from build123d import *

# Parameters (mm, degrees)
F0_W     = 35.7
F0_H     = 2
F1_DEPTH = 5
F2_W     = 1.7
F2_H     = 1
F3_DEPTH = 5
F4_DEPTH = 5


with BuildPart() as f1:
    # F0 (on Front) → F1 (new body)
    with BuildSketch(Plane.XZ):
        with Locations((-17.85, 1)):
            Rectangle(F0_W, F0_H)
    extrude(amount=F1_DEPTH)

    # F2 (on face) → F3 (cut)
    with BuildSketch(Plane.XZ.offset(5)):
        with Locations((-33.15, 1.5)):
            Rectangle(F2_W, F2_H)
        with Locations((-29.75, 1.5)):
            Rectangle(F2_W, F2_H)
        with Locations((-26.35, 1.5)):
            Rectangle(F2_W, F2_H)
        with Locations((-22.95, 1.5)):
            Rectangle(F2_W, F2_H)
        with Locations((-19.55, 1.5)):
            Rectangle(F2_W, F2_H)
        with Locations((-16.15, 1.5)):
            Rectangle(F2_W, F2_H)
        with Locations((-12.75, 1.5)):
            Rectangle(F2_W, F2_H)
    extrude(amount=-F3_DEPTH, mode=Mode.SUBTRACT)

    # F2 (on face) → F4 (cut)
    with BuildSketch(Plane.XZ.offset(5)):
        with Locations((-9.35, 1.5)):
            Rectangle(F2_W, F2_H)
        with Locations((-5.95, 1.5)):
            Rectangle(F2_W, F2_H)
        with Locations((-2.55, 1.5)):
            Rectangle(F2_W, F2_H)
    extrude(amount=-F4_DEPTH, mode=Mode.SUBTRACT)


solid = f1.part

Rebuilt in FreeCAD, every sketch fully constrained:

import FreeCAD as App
import Part
import Sketcher

V = App.Vector


def add_polygon(sketch, points):
    """Adds a closed chain of lines whose ends are joined by coincident constraints."""
    first, n = sketch.GeometryCount, len(points)
    for a, b in zip(points, points[1:] + points[:1]):
        sketch.addGeometry(Part.LineSegment(App.Vector(*a, 0), App.Vector(*b, 0)), False)
    for i in range(n):
        sketch.addConstraint(Sketcher.Constraint("Coincident", first + i, 2, first + (i + 1) % n, 1))

doc = App.newDocument("Part")
body = doc.addObject("PartDesign::Body", "Body")

sketch1 = doc.addObject("Sketcher::SketchObject", "Sketch")
body.addObject(sketch1)
sketch1.AttachmentSupport = (doc.XZ_Plane, [""])
sketch1.MapMode = "FlatFace"
add_polygon(sketch1, [(-35.7, 2), (-35.7, 0), (0, 0), (0, 2)])
sketch1.addConstraint(Sketcher.Constraint("Vertical", 0))
sketch1.addConstraint(Sketcher.Constraint("Horizontal", 1))
sketch1.addConstraint(Sketcher.Constraint("Vertical", 2))
sketch1.addConstraint(Sketcher.Constraint("Horizontal", 3))
sketch1.addConstraint(Sketcher.Constraint("Coincident", 1, 2, -1, 1))
sketch1.addConstraint(Sketcher.Constraint("DistanceY", 0, 2, 0, 1, 2.0))
sketch1.addConstraint(Sketcher.Constraint("DistanceX", 1, 1, 1, 2, 35.7))
pad1 = doc.addObject("PartDesign::Pad", "Pad")
body.addObject(pad1)
pad1.Profile = sketch1
pad1.Length = 5

sketch2 = doc.addObject("Sketcher::SketchObject", "Sketch001")
body.addObject(sketch2)
sketch2.AttachmentSupport = (doc.XZ_Plane, [""])
sketch2.MapMode = "FlatFace"
sketch2.AttachmentOffset = App.Placement(V(0, 0, 5), App.Rotation())
add_polygon(sketch2, [(-34, 2), (-34, 1), (-32.3, 1), (-32.3, 2)])
add_polygon(sketch2, [(-30.6, 2), (-30.6, 1), (-28.9, 1), (-28.9, 2)])
add_polygon(sketch2, [(-27.2, 2), (-27.2, 1), (-25.5, 1), (-25.5, 2)])
add_polygon(sketch2, [(-23.8, 2), (-23.8, 1), (-22.1, 1), (-22.1, 2)])
add_polygon(sketch2, [(-20.4, 2), (-20.4, 1), (-18.7, 1), (-18.7, 2)])
add_polygon(sketch2, [(-17, 2), (-17, 1), (-15.3, 1), (-15.3, 2)])
add_polygon(sketch2, [(-13.6, 2), (-13.6, 1), (-11.9, 1), (-11.9, 2)])
sketch2.addConstraint(Sketcher.Constraint("Vertical", 0))
sketch2.addConstraint(Sketcher.Constraint("Horizontal", 1))
sketch2.addConstraint(Sketcher.Constraint("Vertical", 2))
sketch2.addConstraint(Sketcher.Constraint("Horizontal", 3))
sketch2.addConstraint(Sketcher.Constraint("Vertical", 4))
sketch2.addConstraint(Sketcher.Constraint("Horizontal", 5))
sketch2.addConstraint(Sketcher.Constraint("Vertical", 6))
sketch2.addConstraint(Sketcher.Constraint("Horizontal", 7))
sketch2.addConstraint(Sketcher.Constraint("Vertical", 8))
sketch2.addConstraint(Sketcher.Constraint("Horizontal", 9))
sketch2.addConstraint(Sketcher.Constraint("Vertical", 10))
sketch2.addConstraint(Sketcher.Constraint("Horizontal", 11))
sketch2.addConstraint(Sketcher.Constraint("Vertical", 12))
sketch2.addConstraint(Sketcher.Constraint("Horizontal", 13))
sketch2.addConstraint(Sketcher.Constraint("Vertical", 14))
sketch2.addConstraint(Sketcher.Constraint("Horizontal", 15))
sketch2.addConstraint(Sketcher.Constraint("Vertical", 16))
sketch2.addConstraint(Sketcher.Constraint("Horizontal", 17))
sketch2.addConstraint(Sketcher.Constraint("Vertical", 18))
sketch2.addConstraint(Sketcher.Constraint("Horizontal", 19))
sketch2.addConstraint(Sketcher.Constraint("Vertical", 20))
sketch2.addConstraint(Sketcher.Constraint("Horizontal", 21))
sketch2.addConstraint(Sketcher.Constraint("Vertical", 22))
sketch2.addConstraint(Sketcher.Constraint("Horizontal", 23))
sketch2.addConstraint(Sketcher.Constraint("Vertical", 24))
sketch2.addConstraint(Sketcher.Constraint("Horizontal", 25))
sketch2.addConstraint(Sketcher.Constraint("Vertical", 26))
sketch2.addConstraint(Sketcher.Constraint("Horizontal", 27))
sketch2.addConstraint(Sketcher.Constraint("Horizontal", 1, 2, 4, 2))
sketch2.addConstraint(Sketcher.Constraint("Horizontal", 3, 2, 6, 2))
sketch2.addConstraint(Sketcher.Constraint("Horizontal", 5, 2, 8, 2))
sketch2.addConstraint(Sketcher.Constraint("Horizontal", 7, 2, 10, 2))
sketch2.addConstraint(Sketcher.Constraint("Horizontal", 9, 2, 12, 2))
sketch2.addConstraint(Sketcher.Constraint("Horizontal", 11, 2, 14, 2))
sketch2.addConstraint(Sketcher.Constraint("Horizontal", 13, 2, 16, 2))
sketch2.addConstraint(Sketcher.Constraint("Horizontal", 15, 2, 18, 2))
sketch2.addConstraint(Sketcher.Constraint("Horizontal", 17, 2, 20, 2))
sketch2.addConstraint(Sketcher.Constraint("Horizontal", 19, 2, 22, 2))
sketch2.addConstraint(Sketcher.Constraint("Horizontal", 21, 2, 24, 2))
sketch2.addConstraint(Sketcher.Constraint("Horizontal", 23, 2, 26, 2))
sketch2.addConstraint(Sketcher.Constraint("Equal", 3, 5))
sketch2.addConstraint(Sketcher.Constraint("Equal", 7, 9))
sketch2.addConstraint(Sketcher.Constraint("Equal", 11, 13))
sketch2.addConstraint(Sketcher.Constraint("Equal", 15, 17))
sketch2.addConstraint(Sketcher.Constraint("Equal", 19, 21))
sketch2.addConstraint(Sketcher.Constraint("Equal", 23, 25))
sketch2.addConstraint(Sketcher.Constraint("DistanceY", 0, 2, 0, 1, 1.0))
sketch2.addConstraint(Sketcher.Constraint("DistanceX", 1, 1, 1, 2, 1.7))
sketch2.addConstraint(Sketcher.Constraint("DistanceX", 0, 2, -1, 1, 34.0))
sketch2.addConstraint(Sketcher.Constraint("DistanceY", -1, 1, 0, 2, 1.0))
sketch2.addConstraint(Sketcher.Constraint("DistanceX", 20, 2, -1, 1, 17.0))
sketch2.addConstraint(Sketcher.Constraint("DistanceX", 4, 2, -1, 1, 30.6))
sketch2.addConstraint(Sketcher.Constraint("DistanceX", 8, 2, -1, 1, 27.2))
sketch2.addConstraint(Sketcher.Constraint("DistanceX", 12, 2, -1, 1, 23.8))
sketch2.addConstraint(Sketcher.Constraint("DistanceX", 16, 2, -1, 1, 20.4))
sketch2.addConstraint(Sketcher.Constraint("DistanceX", 24, 2, -1, 1, 13.6))
pocket1 = doc.addObject("PartDesign::Pocket", "Pocket")
body.addObject(pocket1)
pocket1.Profile = sketch2
pocket1.Length = 5

sketch3 = doc.addObject("Sketcher::SketchObject", "Sketch002")
body.addObject(sketch3)
sketch3.AttachmentSupport = (doc.XZ_Plane, [""])
sketch3.MapMode = "FlatFace"
sketch3.AttachmentOffset = App.Placement(V(0, 0, 5), App.Rotation())
add_polygon(sketch3, [(-10.2, 2), (-10.2, 1), (-8.5, 1), (-8.5, 2)])
add_polygon(sketch3, [(-6.8, 2), (-6.8, 1), (-5.1, 1), (-5.1, 2)])
add_polygon(sketch3, [(-3.4, 2), (-3.4, 1), (-1.7, 1), (-1.7, 2)])
sketch3.addConstraint(Sketcher.Constraint("Vertical", 0))
sketch3.addConstraint(Sketcher.Constraint("Horizontal", 1))
sketch3.addConstraint(Sketcher.Constraint("Vertical", 2))
sketch3.addConstraint(Sketcher.Constraint("Horizontal", 3))
sketch3.addConstraint(Sketcher.Constraint("Vertical", 4))
sketch3.addConstraint(Sketcher.Constraint("Horizontal", 5))
sketch3.addConstraint(Sketcher.Constraint("Vertical", 6))
sketch3.addConstraint(Sketcher.Constraint("Horizontal", 7))
sketch3.addConstraint(Sketcher.Constraint("Vertical", 8))
sketch3.addConstraint(Sketcher.Constraint("Horizontal", 9))
sketch3.addConstraint(Sketcher.Constraint("Vertical", 10))
sketch3.addConstraint(Sketcher.Constraint("Horizontal", 11))
sketch3.addConstraint(Sketcher.Constraint("Horizontal", 1, 2, 4, 2))
sketch3.addConstraint(Sketcher.Constraint("Horizontal", 3, 2, 6, 2))
sketch3.addConstraint(Sketcher.Constraint("Horizontal", 5, 2, 8, 2))
sketch3.addConstraint(Sketcher.Constraint("Horizontal", 7, 2, 10, 2))
sketch3.addConstraint(Sketcher.Constraint("Equal", 3, 5))
sketch3.addConstraint(Sketcher.Constraint("Equal", 7, 9))
sketch3.addConstraint(Sketcher.Constraint("DistanceY", 0, 2, 0, 1, 1.0))
sketch3.addConstraint(Sketcher.Constraint("DistanceX", 1, 1, 1, 2, 1.7))
sketch3.addConstraint(Sketcher.Constraint("DistanceY", -1, 1, 0, 2, 1.0))
sketch3.addConstraint(Sketcher.Constraint("DistanceX", 0, 2, -1, 1, 10.2))
sketch3.addConstraint(Sketcher.Constraint("DistanceX", 4, 2, -1, 1, 6.8))
sketch3.addConstraint(Sketcher.Constraint("DistanceX", 8, 2, -1, 1, 3.4))
pocket2 = doc.addObject("PartDesign::Pocket", "Pocket001")
body.addObject(pocket2)
pocket2.Profile = sketch3
pocket2.Length = 5

doc.recompute()
